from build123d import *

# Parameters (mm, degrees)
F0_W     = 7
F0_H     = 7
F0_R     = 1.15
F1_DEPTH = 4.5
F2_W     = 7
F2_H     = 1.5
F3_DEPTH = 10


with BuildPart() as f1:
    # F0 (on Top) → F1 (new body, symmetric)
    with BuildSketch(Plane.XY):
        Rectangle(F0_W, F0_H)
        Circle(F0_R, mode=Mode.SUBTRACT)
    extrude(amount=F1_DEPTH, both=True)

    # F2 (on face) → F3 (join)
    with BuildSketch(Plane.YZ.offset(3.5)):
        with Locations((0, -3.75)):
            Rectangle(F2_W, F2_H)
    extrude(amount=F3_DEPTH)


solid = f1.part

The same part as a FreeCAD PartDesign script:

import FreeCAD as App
import Part
import Sketcher
from FreeCAD import Vector


def add_polygon(sketch, points):
    """Adds a closed chain of lines whose ends are joined by coincident constraints."""
    first, n = sketch.GeometryCount, len(points)
    for a, b in zip(points, points[1:] + points[:1]):
        sketch.addGeometry(Part.LineSegment(App.Vector(*a, 0), App.Vector(*b, 0)), False)
    for i in range(n):
        sketch.addConstraint(Sketcher.Constraint("Coincident", first + i, 2, first + (i + 1) % n, 1))

doc = App.newDocument("Part")
body = doc.addObject("PartDesign::Body", "Body")

# Sketch on XY plane
sketch1 = body.newObject("Sketcher::SketchObject", "Sketch")
sketch1.AttachmentSupport = (doc.getObject("XY_Plane"), [""])
sketch1.MapMode = "FlatFace"
add_polygon(sketch1, [(-3.5, 3.5), (-3.5, -3.5), (3.5, -3.5), (3.5, 3.5)])  # lines 0-3
sketch1.addGeometry(Part.Circle(Vector(0, 0, 0), Vector(0, 0, 1), 1.1), False)  # 4
sketch1.addConstraint(Sketcher.Constraint("Vertical", 0))
sketch1.addConstraint(Sketcher.Constraint("Horizontal", 1))
sketch1.addConstraint(Sketcher.Constraint("Vertical", 2))
sketch1.addConstraint(Sketcher.Constraint("Horizontal", 3))
sketch1.addConstraint(Sketcher.Constraint("Coincident", 4, 3, -1, 1))
sketch1.addConstraint(Sketcher.Constraint("Symmetric", 0, 2, 2, 2, -1, 1))
sketch1.addConstraint(Sketcher.Constraint("Equal", 3, 0))
sketch1.addConstraint(Sketcher.Constraint("Diameter", 4, 2.3))
sketch1.addConstraint(Sketcher.Constraint("DistanceX", 1, 1, 1, 2, 7.0))
pad1 = body.newObject("PartDesign::Pad", "Pad")
pad1.Profile = sketch1
pad1.Length = 9
pad1.Midplane = True

# Sketch on YZ plane
sketch2 = body.newObject("Sketcher::SketchObject", "Sketch001")
sketch2.AttachmentSupport = (doc.getObject("YZ_Plane"), [""])
sketch2.MapMode = "FlatFace"
sketch2.AttachmentOffset = App.Placement(Vector(0, 0, 3.5), App.Rotation())
add_polygon(sketch2, [(-3.5, -3), (-3.5, -4.5), (3.5, -4.5), (3.5, -3)])  # lines 0-3
sketch2.addConstraint(Sketcher.Constraint("Vertical", 0))
sketch2.addConstraint(Sketcher.Constraint("Horizontal", 1))
sketch2.addConstraint(Sketcher.Constraint("Vertical", 2))
sketch2.addConstraint(Sketcher.Constraint("Horizontal", 3))
sketch2.addConstraint(Sketcher.Constraint("DistanceX", 1, 1, 1, 2, 7.0))
sketch2.addConstraint(Sketcher.Constraint("DistanceY", 0, 2, 0, 1, 1.5))
sketch2.addConstraint(Sketcher.Constraint("DistanceY", 2, 2, -1, 1, 3.0))
sketch2.addConstraint(Sketcher.Constraint("DistanceX", 0, 2, -1, 1, 3.5))
pad2 = body.newObject("PartDesign::Pad", "Pad001")
pad2.Profile = sketch2
pad2.Length = 10

doc.recompute()
